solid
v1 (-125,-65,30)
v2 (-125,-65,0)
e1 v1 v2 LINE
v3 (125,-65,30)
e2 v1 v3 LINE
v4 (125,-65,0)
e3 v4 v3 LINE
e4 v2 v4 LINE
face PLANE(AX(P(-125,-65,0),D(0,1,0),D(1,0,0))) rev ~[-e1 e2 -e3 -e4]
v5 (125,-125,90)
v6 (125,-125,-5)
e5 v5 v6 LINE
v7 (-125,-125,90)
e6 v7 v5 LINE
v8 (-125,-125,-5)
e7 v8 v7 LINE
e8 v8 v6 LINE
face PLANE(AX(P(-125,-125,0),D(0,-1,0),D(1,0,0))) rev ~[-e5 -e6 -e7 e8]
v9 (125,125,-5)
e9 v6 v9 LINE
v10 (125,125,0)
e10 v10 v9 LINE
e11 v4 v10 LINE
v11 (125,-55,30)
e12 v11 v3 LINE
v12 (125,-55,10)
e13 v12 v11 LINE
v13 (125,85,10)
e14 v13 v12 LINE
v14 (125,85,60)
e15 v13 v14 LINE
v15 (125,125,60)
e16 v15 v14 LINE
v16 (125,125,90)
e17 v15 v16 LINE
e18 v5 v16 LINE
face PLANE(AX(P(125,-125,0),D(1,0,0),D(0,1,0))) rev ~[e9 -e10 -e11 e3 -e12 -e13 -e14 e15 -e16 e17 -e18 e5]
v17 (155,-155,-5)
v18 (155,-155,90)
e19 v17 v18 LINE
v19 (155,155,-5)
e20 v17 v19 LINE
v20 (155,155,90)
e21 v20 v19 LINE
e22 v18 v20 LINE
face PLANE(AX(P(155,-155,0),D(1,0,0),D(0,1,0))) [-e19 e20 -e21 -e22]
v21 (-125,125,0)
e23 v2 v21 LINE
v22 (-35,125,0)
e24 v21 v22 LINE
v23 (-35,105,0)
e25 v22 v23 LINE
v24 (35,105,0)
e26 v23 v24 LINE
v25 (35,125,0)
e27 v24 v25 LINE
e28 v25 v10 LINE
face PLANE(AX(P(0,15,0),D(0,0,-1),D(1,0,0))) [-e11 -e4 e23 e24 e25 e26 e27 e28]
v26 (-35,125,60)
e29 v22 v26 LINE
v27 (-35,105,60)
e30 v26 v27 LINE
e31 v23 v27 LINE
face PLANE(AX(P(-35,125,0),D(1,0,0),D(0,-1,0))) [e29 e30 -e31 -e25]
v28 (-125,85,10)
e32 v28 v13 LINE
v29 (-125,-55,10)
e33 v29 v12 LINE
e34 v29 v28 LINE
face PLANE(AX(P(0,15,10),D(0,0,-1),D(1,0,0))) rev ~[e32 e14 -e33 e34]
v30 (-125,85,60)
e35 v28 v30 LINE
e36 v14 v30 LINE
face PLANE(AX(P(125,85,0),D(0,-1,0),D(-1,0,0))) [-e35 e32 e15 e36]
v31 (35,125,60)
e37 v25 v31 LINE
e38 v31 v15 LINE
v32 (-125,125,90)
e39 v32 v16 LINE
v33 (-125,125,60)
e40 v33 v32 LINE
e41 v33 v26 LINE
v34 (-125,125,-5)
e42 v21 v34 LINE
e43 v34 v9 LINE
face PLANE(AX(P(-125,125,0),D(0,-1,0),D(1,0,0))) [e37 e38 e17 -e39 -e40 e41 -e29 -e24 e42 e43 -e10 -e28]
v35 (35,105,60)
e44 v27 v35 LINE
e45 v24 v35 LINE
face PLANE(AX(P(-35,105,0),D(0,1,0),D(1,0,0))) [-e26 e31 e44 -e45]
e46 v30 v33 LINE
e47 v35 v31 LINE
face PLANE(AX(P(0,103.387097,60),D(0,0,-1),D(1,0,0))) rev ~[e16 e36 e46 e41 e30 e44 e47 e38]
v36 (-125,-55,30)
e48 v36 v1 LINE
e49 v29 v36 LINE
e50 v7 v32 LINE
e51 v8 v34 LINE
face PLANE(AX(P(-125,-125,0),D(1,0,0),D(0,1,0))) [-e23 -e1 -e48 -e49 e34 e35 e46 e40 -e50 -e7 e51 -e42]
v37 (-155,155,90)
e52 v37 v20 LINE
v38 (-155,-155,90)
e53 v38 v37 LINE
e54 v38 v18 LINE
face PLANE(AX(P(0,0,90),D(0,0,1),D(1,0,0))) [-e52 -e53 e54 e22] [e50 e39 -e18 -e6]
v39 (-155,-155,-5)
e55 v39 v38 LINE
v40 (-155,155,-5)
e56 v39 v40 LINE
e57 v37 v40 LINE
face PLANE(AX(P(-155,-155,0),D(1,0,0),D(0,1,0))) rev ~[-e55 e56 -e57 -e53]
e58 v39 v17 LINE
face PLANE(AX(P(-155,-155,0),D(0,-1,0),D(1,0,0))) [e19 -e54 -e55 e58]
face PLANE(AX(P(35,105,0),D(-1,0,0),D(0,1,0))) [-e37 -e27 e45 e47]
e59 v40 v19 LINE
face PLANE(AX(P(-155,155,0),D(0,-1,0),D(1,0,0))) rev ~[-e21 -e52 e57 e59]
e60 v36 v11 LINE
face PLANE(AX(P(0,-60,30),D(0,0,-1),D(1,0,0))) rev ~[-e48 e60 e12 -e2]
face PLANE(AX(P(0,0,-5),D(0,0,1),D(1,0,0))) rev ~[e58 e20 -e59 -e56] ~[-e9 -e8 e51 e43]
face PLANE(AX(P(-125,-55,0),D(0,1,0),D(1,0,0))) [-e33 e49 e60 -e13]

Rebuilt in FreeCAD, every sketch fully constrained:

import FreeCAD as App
import Part
import Sketcher

V = App.Vector

doc = App.newDocument("Part")
body = doc.addObject("PartDesign::Body", "Body")

sketch1 = body.newObject("Sketcher::SketchObject", "Sketch")
sketch1.AttachmentSupport = (doc.getObject("XY_Plane"), [""])
sketch1.MapMode = "FlatFace"
sketch1.addGeometry([
    Part.LineSegment(V(-155, 155, 0), V(-155, -155, 0)),
    Part.LineSegment(V(-155, -155, 0), V(155, -155, 0)),
    Part.LineSegment(V(155, -155, 0), V(155, 155, 0)),
    Part.LineSegment(V(155, 155, 0), V(-155, 155, 0)),
    Part.LineSegment(V(125, -125, 0), V(-125, -125, 0)),
    Part.LineSegment(V(-125, -125, 0), V(-125, 125, 0)),
    Part.LineSegment(V(-125, 125, 0), V(125, 125, 0)),
    Part.LineSegment(V(125, 125, 0), V(125, -125, 0)),
], False)
sketch1.addConstraint([
    Sketcher.Constraint("Coincident", 0, 2, 1, 1),
    Sketcher.Constraint("Coincident", 1, 2, 2, 1),
    Sketcher.Constraint("Coincident", 2, 2, 3, 1),
    Sketcher.Constraint("Coincident", 3, 2, 0, 1),
    Sketcher.Constraint("Coincident", 4, 2, 5, 1),
    Sketcher.Constraint("Coincident", 5, 2, 6, 1),
    Sketcher.Constraint("Coincident", 6, 2, 7, 1),
    Sketcher.Constraint("Coincident", 7, 2, 4, 1),
    Sketcher.Constraint("Vertical", 0),
    Sketcher.Constraint("Horizontal", 1),
    Sketcher.Constraint("Vertical", 2),
    Sketcher.Constraint("Horizontal", 3),
    Sketcher.Constraint("Horizontal", 4),
    Sketcher.Constraint("Vertical", 5),
    Sketcher.Constraint("Horizontal", 6),
    Sketcher.Constraint("Vertical", 7),
    Sketcher.Constraint("Symmetric", 0, 2, 2, 2, -1, 1),
    Sketcher.Constraint("Symmetric", 4, 2, 6, 2, -1, 1),
    Sketcher.Constraint("Equal", 3, 0),
    Sketcher.Constraint("Equal", 6, 5),
    Sketcher.Constraint("DistanceX", 1, 1, 1, 2, 310.0),
    Sketcher.Constraint("DistanceX", 4, 2, 4, 1, 250.0),
])
pad1 = body.newObject("PartDesign::Pad", "Pad")
pad1.Profile = sketch1
pad1.Length = 90

sketch2 = body.newObject("Sketcher::SketchObject", "Sketch001")
sketch2.AttachmentSupport = (doc.getObject("XY_Plane"), [""])
sketch2.MapMode = "FlatFace"
sketch2.addGeometry([
    Part.LineSegment(V(-125, 85, 0), V(-125, 125, 0)),
    Part.LineSegment(V(-125, 125, 0), V(-35, 125, 0)),
    Part.LineSegment(V(-35, 125, 0), V(-35, 105, 0)),
    Part.LineSegment(V(-35, 105, 0), V(35, 105, 0)),
    Part.LineSegment(V(35, 105, 0), V(35, 125, 0)),
    Part.LineSegment(V(35, 125, 0), V(125, 125, 0)),
    Part.LineSegment(V(125, 125, 0), V(125, 85, 0)),
    Part.LineSegment(V(125, 85, 0), V(-125, 85, 0)),
], False)
sketch2.addConstraint([
    Sketcher.Constraint("Coincident", 0, 2, 1, 1),
    Sketcher.Constraint("Coincident", 1, 2, 2, 1),
    Sketcher.Constraint("Coincident", 2, 2, 3, 1),
    Sketcher.Constraint("Coincident", 3, 2, 4, 1),
    Sketcher.Constraint("Coincident", 4, 2, 5, 1),
    Sketcher.Constraint("Coincident", 5, 2, 6, 1),
    Sketcher.Constraint("Coincident", 6, 2, 7, 1),
    Sketcher.Constraint("Coincident", 7, 2, 0, 1),
    Sketcher.Constraint("Vertical", 0),
    Sketcher.Constraint("Horizontal", 1),
    Sketcher.Constraint("Vertical", 2),
    Sketcher.Constraint("Horizontal", 3),
    Sketcher.Constraint("Vertical", 4),
    Sketcher.Constraint("Horizontal", 5),
    Sketcher.Constraint("Vertical", 6),
    Sketcher.Constraint("Horizontal", 7),
    Sketcher.Constraint("Symmetric", 1, 2, 4, 2, -2),
    Sketcher.Constraint("Equal", 1, 5),
    Sketcher.Constraint("DistanceX", 1, 1, 1, 2, 90.0),
    Sketcher.Constraint("DistanceX", 3, 1, 3, 2, 70.0),
    Sketcher.Constraint("DistanceY", 0, 1, 0, 2, 40.0),
    Sketcher.Constraint("DistanceY", 2, 2, 2, 1, 20.0),
    Sketcher.Constraint("DistanceY", -1, 1, 0, 2, 125.0),
])
pad2 = body.newObject("PartDesign::Pad", "Pad001")
pad2.Profile = sketch2
pad2.Length = 60

sketch3 = body.newObject("Sketcher::SketchObject", "Sketch002")
sketch3.AttachmentSupport = (doc.getObject("XY_Plane"), [""])
sketch3.MapMode = "FlatFace"
sketch3.addGeometry([
    Part.LineSegment(V(-125, 85, 0), V(125, 85, 0)),
    Part.LineSegment(V(125, 85, 0), V(125, -65, 0)),
    Part.LineSegment(V(125, -65, 0), V(-125, -65, 0)),
    Part.LineSegment(V(-125, -65, 0), V(-125, 85, 0)),
], False)
sketch3.addConstraint([
    Sketcher.Constraint("Coincident", 0, 2, 1, 1),
    Sketcher.Constraint("Coincident", 1, 2, 2, 1),
    Sketcher.Constraint("Coincident", 2, 2, 3, 1),
    Sketcher.Constraint("Coincident", 3, 2, 0, 1),
    Sketcher.Constraint("Horizontal", 0),
    Sketcher.Constraint("Vertical", 1),
    Sketcher.Constraint("Horizontal", 2),
    Sketcher.Constraint("Vertical", 3),
    Sketcher.Constraint("DistanceX", 0, 1, 0, 2, 250.0),
    Sketcher.Constraint("DistanceY", 1, 2, 1, 1, 150.0),
    Sketcher.Constraint("DistanceX", -1, 1, 0, 2, 125.0),
    Sketcher.Constraint("DistanceY", -1, 1, 0, 2, 85.0),
])
pad3 = body.newObject("PartDesign::Pad", "Pad002")
pad3.Profile = sketch3
pad3.Length = 10

sketch4 = body.newObject("Sketcher::SketchObject", "Sketch003")
sketch4.AttachmentSupport = (doc.getObject("XY_Plane"), [""])
sketch4.MapMode = "FlatFace"
sketch4.addGeometry([
    Part.LineSegment(V(-125, -65, 0), V(-125, -55, 0)),
    Part.LineSegment(V(-125, -55, 0), V(125, -55, 0)),
    Part.LineSegment(V(125, -55, 0), V(125, -65, 0)),
    Part.LineSegment(V(125, -65, 0), V(-125, -65, 0)),
], False)
sketch4.addConstraint([
    Sketcher.Constraint("Coincident", 0, 2, 1, 1),
    Sketcher.Constraint("Coincident", 1, 2, 2, 1),
    Sketcher.Constraint("Coincident", 2, 2, 3, 1),
    Sketcher.Constraint("Coincident", 3, 2, 0, 1),
    Sketcher.Constraint("Vertical", 0),
    Sketcher.Constraint("Horizontal", 1),
    Sketcher.Constraint("Vertical", 2),
    Sketcher.Constraint("Horizontal", 3),
    Sketcher.Constraint("DistanceX", 1, 1, 1, 2, 250.0),
    Sketcher.Constraint("DistanceY", 0, 1, 0, 2, 10.0),
    Sketcher.Constraint("DistanceX", 0, 2, -1, 1, 125.0),
    Sketcher.Constraint("DistanceY", 0, 2, -1, 1, 55.0),
])
pad4 = body.newObject("PartDesign::Pad", "Pad003")
pad4.Profile = sketch4
pad4.Length = 30

sketch5 = body.newObject("Sketcher::SketchObject", "Sketch004")
sketch5.AttachmentSupport = (doc.getObject("XY_Plane"), [""])
sketch5.MapMode = "FlatFace"
sketch5.addGeometry([
    Part.LineSegment(V(-155, 155, 0), V(-155, -155, 0)),
    Part.LineSegment(V(-155, -155, 0), V(155, -155, 0)),
    Part.LineSegment(V(155, -155, 0), V(155, 155, 0)),
    Part.LineSegment(V(155, 155, 0), V(-155, 155, 0)),
    Part.LineSegment(V(125, -125, 0), V(-125, -125, 0)),
    Part.LineSegment(V(-125, -125, 0), V(-125, 125, 0)),
    Part.LineSegment(V(-125, 125, 0), V(125, 125, 0)),
    Part.LineSegment(V(125, 125, 0), V(125, -125, 0)),
], False)
sketch5.addConstraint([
    Sketcher.Constraint("Coincident", 0, 2, 1, 1),
    Sketcher.Constraint("Coincident", 1, 2, 2, 1),
    Sketcher.Constraint("Coincident", 2, 2, 3, 1),
    Sketcher.Constraint("Coincident", 3, 2, 0, 1),
    Sketcher.Constraint("Coincident", 4, 2, 5, 1),
    Sketcher.Constraint("Coincident", 5, 2, 6, 1),
    Sketcher.Constraint("Coincident", 6, 2, 7, 1),
    Sketcher.Constraint("Coincident", 7, 2, 4, 1),
    Sketcher.Constraint("Vertical", 0),
    Sketcher.Constraint("Horizontal", 1),
    Sketcher.Constraint("Vertical", 2),
    Sketcher.Constraint("Horizontal", 3),
    Sketcher.Constraint("Horizontal", 4),
    Sketcher.Constraint("Vertical", 5),
    Sketcher.Constraint("Horizontal", 6),
    Sketcher.Constraint("Vertical", 7),
    Sketcher.Constraint("Symmetric", 0, 2, 2, 2, -1, 1),
    Sketcher.Constraint("Symmetric", 4, 2, 6, 2, -1, 1),
    Sketcher.Constraint("Equal", 3, 0),
    Sketcher.Constraint("Equal", 6, 5),
    Sketcher.Constraint("DistanceX", 1, 1, 1, 2, 310.0),
    Sketcher.Constraint("DistanceX", 4, 2, 4, 1, 250.0),
])
pad5 = body.newObject("PartDesign::Pad", "Pad004")
pad5.Profile = sketch5
pad5.Length = 5
pad5.Reversed = True

doc.recompute()
